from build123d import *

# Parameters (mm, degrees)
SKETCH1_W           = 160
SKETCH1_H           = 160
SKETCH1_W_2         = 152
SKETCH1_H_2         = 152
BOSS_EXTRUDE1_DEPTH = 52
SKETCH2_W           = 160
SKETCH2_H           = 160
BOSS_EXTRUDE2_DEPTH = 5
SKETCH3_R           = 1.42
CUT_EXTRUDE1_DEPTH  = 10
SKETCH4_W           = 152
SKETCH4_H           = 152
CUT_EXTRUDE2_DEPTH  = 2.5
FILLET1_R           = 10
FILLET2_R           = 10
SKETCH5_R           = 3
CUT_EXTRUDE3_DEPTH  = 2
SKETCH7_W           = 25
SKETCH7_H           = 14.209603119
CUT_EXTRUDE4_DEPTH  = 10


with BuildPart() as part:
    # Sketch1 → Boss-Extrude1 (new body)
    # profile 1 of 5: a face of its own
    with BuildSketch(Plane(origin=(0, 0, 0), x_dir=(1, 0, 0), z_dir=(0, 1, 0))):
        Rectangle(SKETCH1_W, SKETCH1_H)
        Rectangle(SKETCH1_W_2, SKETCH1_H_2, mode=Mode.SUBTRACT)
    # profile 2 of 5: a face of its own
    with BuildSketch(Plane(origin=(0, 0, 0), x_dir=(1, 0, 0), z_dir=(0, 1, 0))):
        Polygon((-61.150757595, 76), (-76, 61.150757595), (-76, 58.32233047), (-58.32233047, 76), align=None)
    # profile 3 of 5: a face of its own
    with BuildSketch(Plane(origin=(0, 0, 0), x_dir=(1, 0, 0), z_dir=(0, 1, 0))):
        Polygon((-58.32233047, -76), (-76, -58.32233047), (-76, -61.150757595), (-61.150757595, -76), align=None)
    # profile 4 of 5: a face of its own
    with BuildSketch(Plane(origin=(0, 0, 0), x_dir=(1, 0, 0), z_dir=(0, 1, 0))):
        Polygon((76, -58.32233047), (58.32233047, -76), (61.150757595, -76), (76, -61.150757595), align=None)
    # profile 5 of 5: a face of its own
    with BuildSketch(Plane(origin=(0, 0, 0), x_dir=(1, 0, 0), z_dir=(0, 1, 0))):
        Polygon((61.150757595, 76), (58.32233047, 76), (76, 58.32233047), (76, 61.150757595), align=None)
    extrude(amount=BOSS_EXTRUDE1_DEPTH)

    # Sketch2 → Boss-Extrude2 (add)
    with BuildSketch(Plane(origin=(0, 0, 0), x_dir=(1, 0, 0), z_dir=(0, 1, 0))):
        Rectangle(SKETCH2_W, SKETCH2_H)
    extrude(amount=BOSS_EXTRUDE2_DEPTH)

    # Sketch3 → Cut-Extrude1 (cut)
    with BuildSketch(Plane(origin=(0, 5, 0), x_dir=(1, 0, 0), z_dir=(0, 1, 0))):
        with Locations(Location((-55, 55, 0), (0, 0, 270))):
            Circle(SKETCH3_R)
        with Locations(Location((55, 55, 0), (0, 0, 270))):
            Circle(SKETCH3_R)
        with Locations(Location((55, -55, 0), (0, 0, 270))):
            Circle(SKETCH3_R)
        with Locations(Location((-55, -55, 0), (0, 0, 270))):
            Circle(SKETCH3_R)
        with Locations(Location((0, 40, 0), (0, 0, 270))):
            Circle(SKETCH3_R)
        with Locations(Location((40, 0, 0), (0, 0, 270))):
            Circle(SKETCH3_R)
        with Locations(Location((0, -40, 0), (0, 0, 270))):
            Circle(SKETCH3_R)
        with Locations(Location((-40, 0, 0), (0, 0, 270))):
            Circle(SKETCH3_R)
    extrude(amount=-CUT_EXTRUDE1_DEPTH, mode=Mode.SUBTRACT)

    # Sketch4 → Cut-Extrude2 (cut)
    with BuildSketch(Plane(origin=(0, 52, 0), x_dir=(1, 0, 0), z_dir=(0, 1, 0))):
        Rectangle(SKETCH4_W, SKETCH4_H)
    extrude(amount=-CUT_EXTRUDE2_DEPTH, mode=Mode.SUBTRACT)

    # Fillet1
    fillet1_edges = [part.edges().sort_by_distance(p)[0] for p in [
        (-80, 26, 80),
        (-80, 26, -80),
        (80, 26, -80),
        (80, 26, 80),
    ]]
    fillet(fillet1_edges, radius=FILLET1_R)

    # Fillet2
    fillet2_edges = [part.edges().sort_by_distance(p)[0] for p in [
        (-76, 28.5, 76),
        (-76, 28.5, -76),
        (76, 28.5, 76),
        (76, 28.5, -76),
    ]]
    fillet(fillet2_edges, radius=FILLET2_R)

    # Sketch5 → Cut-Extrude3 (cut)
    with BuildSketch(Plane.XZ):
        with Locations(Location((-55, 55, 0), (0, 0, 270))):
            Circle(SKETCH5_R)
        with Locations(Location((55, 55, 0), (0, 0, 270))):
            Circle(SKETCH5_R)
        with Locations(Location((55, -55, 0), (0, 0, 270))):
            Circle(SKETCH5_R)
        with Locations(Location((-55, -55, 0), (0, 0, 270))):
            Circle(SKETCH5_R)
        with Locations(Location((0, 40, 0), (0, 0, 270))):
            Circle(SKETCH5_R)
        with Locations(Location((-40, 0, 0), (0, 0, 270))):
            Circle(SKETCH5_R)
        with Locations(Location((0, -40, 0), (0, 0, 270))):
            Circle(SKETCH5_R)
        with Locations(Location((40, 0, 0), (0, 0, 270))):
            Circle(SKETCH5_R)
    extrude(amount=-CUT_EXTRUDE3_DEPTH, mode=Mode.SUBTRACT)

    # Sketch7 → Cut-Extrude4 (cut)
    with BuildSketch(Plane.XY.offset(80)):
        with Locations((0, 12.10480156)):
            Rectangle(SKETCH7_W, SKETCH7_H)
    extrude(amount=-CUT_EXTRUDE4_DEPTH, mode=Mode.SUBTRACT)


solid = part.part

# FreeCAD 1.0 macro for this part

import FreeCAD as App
import Part
import Sketcher
from FreeCAD import Vector


def edges_at(feature, points):
    """Names of the edges that pass closest to the given points."""
    edges = feature.Shape.Edges
    near = lambda p: min(range(len(edges)), key=lambda i: edges[i].distToShape(Part.Vertex(*p))[0])
    return sorted({f"Edge{near(p) + 1}" for p in points})

doc = App.newDocument("Part")
body = doc.addObject("PartDesign::Body", "Body")

# Sketch on XZ plane
sketch1 = doc.addObject("Sketcher::SketchObject", "Sketch")
body.addObject(sketch1)
sketch1.AttachmentSupport = (doc.XZ_Plane, [""])
sketch1.MapMode = "FlatFace"
sketch1.addGeometry([
    Part.LineSegment(Vector(-80, -80, 0), Vector(-80, 80, 0)),  # 0
    Part.LineSegment(Vector(-80, 80, 0), Vector(80, 80, 0)),  # 1
    Part.LineSegment(Vector(80, 80, 0), Vector(80, -80, 0)),  # 2
    Part.LineSegment(Vector(80, -80, 0), Vector(-80, -80, 0)),  # 3
    Part.LineSegment(Vector(-61.150758, 76, 0), Vector(-76, 76, 0)),  # 4
    Part.LineSegment(Vector(-76, 76, 0), Vector(-76, 61.150758, 0)),  # 5
    Part.LineSegment(Vector(-76, 61.150758, 0), Vector(-61.150758, 76, 0)),  # 6
    Part.LineSegment(Vector(58.32233, 76, 0), Vector(-58.32233, 76, 0)),  # 7
    Part.LineSegment(Vector(-58.32233, 76, 0), Vector(-76, 58.32233, 0)),  # 8
    Part.LineSegment(Vector(-76, 58.32233, 0), Vector(-76, -58.32233, 0)),  # 9
    Part.LineSegment(Vector(-76, -58.32233, 0), Vector(-58.32233, -76, 0)),  # 10
    Part.LineSegment(Vector(-58.32233, -76, 0), Vector(58.32233, -76, 0)),  # 11
    Part.LineSegment(Vector(58.32233, -76, 0), Vector(76, -58.32233, 0)),  # 12
    Part.LineSegment(Vector(76, -58.32233, 0), Vector(76, 58.32233, 0)),  # 13
    Part.LineSegment(Vector(76, 58.32233, 0), Vector(58.32233, 76, 0)),  # 14
    Part.LineSegment(Vector(76, 76, 0), Vector(61.150758, 76, 0)),  # 15
    Part.LineSegment(Vector(61.150758, 76, 0), Vector(76, 61.150758, 0)),  # 16
    Part.LineSegment(Vector(76, 61.150758, 0), Vector(76, 76, 0)),  # 17
    Part.LineSegment(Vector(76, -76, 0), Vector(76, -61.150758, 0)),  # 18
    Part.LineSegment(Vector(76, -61.150758, 0), Vector(61.150758, -76, 0)),  # 19
    Part.LineSegment(Vector(61.150758, -76, 0), Vector(76, -76, 0)),  # 20
    Part.LineSegment(Vector(-76, -76, 0), Vector(-61.150758, -76, 0)),  # 21
    Part.LineSegment(Vector(-61.150758, -76, 0), Vector(-76, -61.150758, 0)),  # 22
    Part.LineSegment(Vector(-76, -61.150758, 0), Vector(-76, -76, 0)),  # 23
], False)
sketch1.addConstraint([
    Sketcher.Constraint("Coincident", 0, 2, 1, 1),
    Sketcher.Constraint("Coincident", 1, 2, 2, 1),
    Sketcher.Constraint("Coincident", 2, 2, 3, 1),
    Sketcher.Constraint("Coincident", 3, 2, 0, 1),
    Sketcher.Constraint("Coincident", 4, 2, 5, 1),
    Sketcher.Constraint("Coincident", 5, 2, 6, 1),
    Sketcher.Constraint("Coincident", 6, 2, 4, 1),
    Sketcher.Constraint("Coincident", 7, 2, 8, 1),
    Sketcher.Constraint("Coincident", 8, 2, 9, 1),
    Sketcher.Constraint("Coincident", 9, 2, 10, 1),
    Sketcher.Constraint("Coincident", 10, 2, 11, 1),
    Sketcher.Constraint("Coincident", 11, 2, 12, 1),
    Sketcher.Constraint("Coincident", 12, 2, 13, 1),
    Sketcher.Constraint("Coincident", 13, 2, 14, 1),
    Sketcher.Constraint("Coincident", 14, 2, 7, 1),
    Sketcher.Constraint("Coincident", 15, 2, 16, 1),
    Sketcher.Constraint("Coincident", 16, 2, 17, 1),
    Sketcher.Constraint("Coincident", 17, 2, 15, 1),
    Sketcher.Constraint("Coincident", 18, 2, 19, 1),
    Sketcher.Constraint("Coincident", 19, 2, 20, 1),
    Sketcher.Constraint("Coincident", 20, 2, 18, 1),
    Sketcher.Constraint("Coincident", 21, 2, 22, 1),
    Sketcher.Constraint("Coincident", 22, 2, 23, 1),
    Sketcher.Constraint("Coincident", 23, 2, 21, 1),
    Sketcher.Constraint("Vertical", 0),
    Sketcher.Constraint("Horizontal", 1),
    Sketcher.Constraint("Vertical", 2),
    Sketcher.Constraint("Horizontal", 3),
    Sketcher.Constraint("Horizontal", 4),
    Sketcher.Constraint("Vertical", 5),
    Sketcher.Constraint("Horizontal", 7),
    Sketcher.Constraint("Vertical", 9),
    Sketcher.Constraint("Horizontal", 11),
    Sketcher.Constraint("Vertical", 13),
    Sketcher.Constraint("Horizontal", 15),
    Sketcher.Constraint("Vertical", 17),
    Sketcher.Constraint("Vertical", 18),
    Sketcher.Constraint("Horizontal", 20),
    Sketcher.Constraint("Horizontal", 21),
    Sketcher.Constraint("Vertical", 23),
    Sketcher.Constraint("Symmetric", 0, 2, 2, 2, -1, 1),
    Sketcher.Constraint("Symmetric", 7, 2, 11, 2, -1, 1),
    Sketcher.Constraint("Symmetric", 8, 2, 12, 2, -1, 1),
    Sketcher.Constraint("Symmetric", 5, 2, 18, 2, -1, 1),
    Sketcher.Constraint("Symmetric", 6, 2, 19, 2, -1, 1),
    Sketcher.Constraint("Symmetric", 15, 2, 21, 2, -1, 1),
    Sketcher.Constraint("Symmetric", 16, 2, 22, 2, -1, 1),
    Sketcher.Constraint("Symmetric", 6, 2, 15, 2, -2),
    Sketcher.Constraint("Symmetric", 5, 2, 16, 2, -2),
    Sketcher.Constraint("Parallel", 6, 8),
    Sketcher.Constraint("Perpendicular", 8, 10),
    Sketcher.Constraint("Perpendicular", 12, 14),
    Sketcher.Constraint("Parallel", 14, 16),
    Sketcher.Constraint("Horizontal", 6, 2, 7, 2),
    Sketcher.Constraint("Horizontal", 9, 2, 12, 2),
    Sketcher.Constraint("Horizontal", 8, 2, 13, 2),
    Sketcher.Constraint("Vertical", 5, 2, 8, 2),
    Sketcher.Constraint("Equal", 3, 0),
    Sketcher.Constraint("Equal", 11, 9),
    Sketcher.Constraint("DistanceX", 1, 1, 1, 2, 160.0),
    Sketcher.Constraint("Distance", 6, 21.0),
    Sketcher.Constraint("Distance", 8, 25.0),
    Sketcher.Constraint("DistanceX", 4, 2, -1, 1, 76.0),
])
pad1 = doc.addObject("PartDesign::Pad", "Pad")
body.addObject(pad1)
pad1.Profile = sketch1
pad1.Length = 52
pad1.Reversed = True

# Sketch on XZ plane
sketch2 = doc.addObject("Sketcher::SketchObject", "Sketch001")
body.addObject(sketch2)
sketch2.AttachmentSupport = (doc.XZ_Plane, [""])
sketch2.MapMode = "FlatFace"
sketch2.addGeometry([
    Part.LineSegment(Vector(-80, -80, 0), Vector(-80, 80, 0)),
    Part.LineSegment(Vector(-80, 80, 0), Vector(80, 80, 0)),
    Part.LineSegment(Vector(80, 80, 0), Vector(80, -80, 0)),
    Part.LineSegment(Vector(80, -80, 0), Vector(-80, -80, 0)),
], False)
sketch2.addConstraint([
    Sketcher.Constraint("Coincident", 0, 2, 1, 1),
    Sketcher.Constraint("Coincident", 1, 2, 2, 1),
    Sketcher.Constraint("Coincident", 2, 2, 3, 1),
    Sketcher.Constraint("Coincident", 3, 2, 0, 1),
    Sketcher.Constraint("Vertical", 0),
    Sketcher.Constraint("Horizontal", 1),
    Sketcher.Constraint("Vertical", 2),
    Sketcher.Constraint("Horizontal", 3),
    Sketcher.Constraint("Symmetric", 0, 2, 2, 2, -1, 1),
    Sketcher.Constraint("Equal", 3, 0),
    Sketcher.Constraint("DistanceX", 1, 1, 1, 2, 160.0),
])
pad2 = doc.addObject("PartDesign::Pad", "Pad001")
body.addObject(pad2)
pad2.Profile = sketch2
pad2.Length = 5
pad2.Reversed = True

# Sketch on XZ plane
sketch3 = doc.addObject("Sketcher::SketchObject", "Sketch002")
body.addObject(sketch3)
sketch3.AttachmentSupport = (doc.XZ_Plane, [""])
sketch3.MapMode = "FlatFace"
sketch3.AttachmentOffset = App.Placement(Vector(0, 0, -5), App.Rotation())
sketch3.addGeometry([
    Part.Circle(Vector(-55, -55, 0), Vector(0, 0, 1), 1.42),  # 0
    Part.Circle(Vector(55, -55, 0), Vector(0, 0, 1), 1.42),  # 1
    Part.Circle(Vector(55, 55, 0), Vector(0, 0, 1), 1.42),  # 2
    Part.Circle(Vector(-55, 55, 0), Vector(0, 0, 1), 1.42),  # 3
    Part.Circle(Vector(0, -40, 0), Vector(0, 0, 1), 1.42),  # 4
    Part.Circle(Vector(40, 0, 0), Vector(0, 0, 1), 1.42),  # 5
    Part.Circle(Vector(0, 40, 0), Vector(0, 0, 1), 1.42),  # 6
    Part.Circle(Vector(-40, 0, 0), Vector(0, 0, 1), 1.42),  # 7
], False)
sketch3.addConstraint([
    Sketcher.Constraint("Equal", 0, 1),
    Sketcher.Constraint("Equal", 1, 2),
    Sketcher.Constraint("Equal", 2, 3),
    Sketcher.Constraint("Equal", 3, 4),
    Sketcher.Constraint("Equal", 4, 5),
    Sketcher.Constraint("Equal", 5, 6),
    Sketcher.Constraint("Equal", 6, 7),
    Sketcher.Constraint("Symmetric", 0, 3, 2, 3, -1, 1),
    Sketcher.Constraint("Symmetric", 1, 3, 3, 3, -1, 1),
    Sketcher.Constraint("Symmetric", 4, 3, 6, 3, -1, 1),
    Sketcher.Constraint("Symmetric", 5, 3, 7, 3, -1, 1),
    Sketcher.Constraint("Symmetric", 0, 3, 1, 3, -2),
    Sketcher.Constraint("PointOnObject", 4, 3, -2),
    Sketcher.Constraint("PointOnObject", 5, 3, -1),
    Sketcher.Constraint("Diameter", 0, 2.84),
    Sketcher.Constraint("DistanceX", 0, 3, -1, 1, 55.0),
    Sketcher.Constraint("DistanceY", 0, 3, -1, 1, 55.0),
    Sketcher.Constraint("DistanceY", 4, 3, -1, 1, 40.0),
    Sketcher.Constraint("DistanceX", -1, 1, 5, 3, 40.0),
])
pocket1 = doc.addObject("PartDesign::Pocket", "Pocket")
body.addObject(pocket1)
pocket1.Profile = sketch3
pocket1.Length = 10
pocket1.Reversed = True

# Sketch on XZ plane
sketch4 = doc.addObject("Sketcher::SketchObject", "Sketch003")
body.addObject(sketch4)
sketch4.AttachmentSupport = (doc.XZ_Plane, [""])
sketch4.MapMode = "FlatFace"
sketch4.AttachmentOffset = App.Placement(Vector(0, 0, -52), App.Rotation())
sketch4.addGeometry([
    Part.LineSegment(Vector(-76, -76, 0), Vector(-76, 76, 0)),
    Part.LineSegment(Vector(-76, 76, 0), Vector(76, 76, 0)),
    Part.LineSegment(Vector(76, 76, 0), Vector(76, -76, 0)),
    Part.LineSegment(Vector(76, -76, 0), Vector(-76, -76, 0)),
], False)
sketch4.addConstraint([
    Sketcher.Constraint("Coincident", 0, 2, 1, 1),
    Sketcher.Constraint("Coincident", 1, 2, 2, 1),
    Sketcher.Constraint("Coincident", 2, 2, 3, 1),
    Sketcher.Constraint("Coincident", 3, 2, 0, 1),
    Sketcher.Constraint("Vertical", 0),
    Sketcher.Constraint("Horizontal", 1),
    Sketcher.Constraint("Vertical", 2),
    Sketcher.Constraint("Horizontal", 3),
    Sketcher.Constraint("Symmetric", 0, 2, 2, 2, -1, 1),
    Sketcher.Constraint("Equal", 3, 0),
    Sketcher.Constraint("DistanceX", 1, 1, 1, 2, 152.0),
])
pocket2 = doc.addObject("PartDesign::Pocket", "Pocket001")
body.addObject(pocket2)
pocket2.Profile = sketch4
pocket2.Length = 2.5
pocket2.Reversed = True
doc.recompute()

fillet = doc.addObject("PartDesign::Fillet", "Fillet")
body.addObject(fillet)
fillet.Base = (pocket2, edges_at(pocket2, [
    (-80, 26, 80),
    (-80, 26, -80),
    (80, 26, -80),
    (80, 26, 80),
]))
fillet.Radius = 10
doc.recompute()

fillet2 = doc.addObject("PartDesign::Fillet", "Fillet001")
body.addObject(fillet2)
fillet2.Base = (fillet, edges_at(fillet, [
    (-76, 28.5, 76),
    (-76, 28.5, -76),
    (76, 28.5, 76),
    (76, 28.5, -76),
]))
fillet2.Radius = 10

# Sketch on XZ plane
sketch5 = doc.addObject("Sketcher::SketchObject", "Sketch004")
body.addObject(sketch5)
sketch5.AttachmentSupport = (doc.XZ_Plane, [""])
sketch5.MapMode = "FlatFace"
sketch5.addGeometry([
    Part.Circle(Vector(-55, 55, 0), Vector(0, 0, 1), 3),  # 0
    Part.Circle(Vector(55, 55, 0), Vector(0, 0, 1), 3),  # 1
    Part.Circle(Vector(55, -55, 0), Vector(0, 0, 1), 3),  # 2
    Part.Circle(Vector(-55, -55, 0), Vector(0, 0, 1), 3),  # 3
    Part.Circle(Vector(0, 40, 0), Vector(0, 0, 1), 3),  # 4
    Part.Circle(Vector(-40, 0, 0), Vector(0, 0, 1), 3),  # 5
    Part.Circle(Vector(0, -40, 0), Vector(0, 0, 1), 3),  # 6
    Part.Circle(Vector(40, 0, 0), Vector(0, 0, 1), 3),  # 7
], False)
sketch5.addConstraint([
    Sketcher.Constraint("Equal", 0, 1),
    Sketcher.Constraint("Equal", 1, 2),
    Sketcher.Constraint("Equal", 2, 3),
    Sketcher.Constraint("Equal", 3, 4),
    Sketcher.Constraint("Equal", 4, 5),
    Sketcher.Constraint("Equal", 5, 6),
    Sketcher.Constraint("Equal", 6, 7),
    Sketcher.Constraint("Symmetric", 0, 3, 2, 3, -1, 1),
    Sketcher.Constraint("Symmetric", 1, 3, 3, 3, -1, 1),
    Sketcher.Constraint("Symmetric", 4, 3, 6, 3, -1, 1),
    Sketcher.Constraint("Symmetric", 5, 3, 7, 3, -1, 1),
    Sketcher.Constraint("Symmetric", 0, 3, 1, 3, -2),
    Sketcher.Constraint("PointOnObject", 4, 3, -2),
    Sketcher.Constraint("PointOnObject", 5, 3, -1),
    Sketcher.Constraint("Diameter", 0, 6.0),
    Sketcher.Constraint("DistanceX", 0, 3, -1, 1, 55.0),
    Sketcher.Constraint("DistanceY", -1, 1, 0, 3, 55.0),
    Sketcher.Constraint("DistanceY", -1, 1, 4, 3, 40.0),
    Sketcher.Constraint("DistanceX", 5, 3, -1, 1, 40.0),
])
pocket3 = doc.addObject("PartDesign::Pocket", "Pocket002")
body.addObject(pocket3)
pocket3.Profile = sketch5
pocket3.Length = 2

# Sketch on XY plane
sketch6 = doc.addObject("Sketcher::SketchObject", "Sketch005")
body.addObject(sketch6)
sketch6.AttachmentSupport = (doc.XY_Plane, [""])
sketch6.MapMode = "FlatFace"
sketch6.AttachmentOffset = App.Placement(Vector(0, 0, 80), App.Rotation())
sketch6.addGeometry([
    Part.LineSegment(Vector(-12.5, 19.209603, 0), Vector(-12.5, 5, 0)),
    Part.LineSegment(Vector(-12.5, 5, 0), Vector(12.5, 5, 0)),
    Part.LineSegment(Vector(12.5, 5, 0), Vector(12.5, 19.209603, 0)),
    Part.LineSegment(Vector(12.5, 19.209603, 0), Vector(-12.5, 19.209603, 0)),
], False)
sketch6.addConstraint([
    Sketcher.Constraint("Coincident", 0, 2, 1, 1),
    Sketcher.Constraint("Coincident", 1, 2, 2, 1),
    Sketcher.Constraint("Coincident", 2, 2, 3, 1),
    Sketcher.Constraint("Coincident", 3, 2, 0, 1),
    Sketcher.Constraint("Vertical", 0),
    Sketcher.Constraint("Horizontal", 1),
    Sketcher.Constraint("Vertical", 2),
    Sketcher.Constraint("Horizontal", 3),
    Sketcher.Constraint("DistanceX", 1, 1, 1, 2, 25.0),
    Sketcher.Constraint("DistanceY", -1, 1, 0, 2, 5.0),
    Sketcher.Constraint("DistanceX", 0, 2, -1, 1, 12.5),
    Sketcher.Constraint("DistanceY", 0, 2, 0, 1, 14.209603),
])
pocket4 = doc.addObject("PartDesign::Pocket", "Pocket003")
body.addObject(pocket4)
pocket4.Profile = sketch6
pocket4.Length = 10

doc.recompute()
